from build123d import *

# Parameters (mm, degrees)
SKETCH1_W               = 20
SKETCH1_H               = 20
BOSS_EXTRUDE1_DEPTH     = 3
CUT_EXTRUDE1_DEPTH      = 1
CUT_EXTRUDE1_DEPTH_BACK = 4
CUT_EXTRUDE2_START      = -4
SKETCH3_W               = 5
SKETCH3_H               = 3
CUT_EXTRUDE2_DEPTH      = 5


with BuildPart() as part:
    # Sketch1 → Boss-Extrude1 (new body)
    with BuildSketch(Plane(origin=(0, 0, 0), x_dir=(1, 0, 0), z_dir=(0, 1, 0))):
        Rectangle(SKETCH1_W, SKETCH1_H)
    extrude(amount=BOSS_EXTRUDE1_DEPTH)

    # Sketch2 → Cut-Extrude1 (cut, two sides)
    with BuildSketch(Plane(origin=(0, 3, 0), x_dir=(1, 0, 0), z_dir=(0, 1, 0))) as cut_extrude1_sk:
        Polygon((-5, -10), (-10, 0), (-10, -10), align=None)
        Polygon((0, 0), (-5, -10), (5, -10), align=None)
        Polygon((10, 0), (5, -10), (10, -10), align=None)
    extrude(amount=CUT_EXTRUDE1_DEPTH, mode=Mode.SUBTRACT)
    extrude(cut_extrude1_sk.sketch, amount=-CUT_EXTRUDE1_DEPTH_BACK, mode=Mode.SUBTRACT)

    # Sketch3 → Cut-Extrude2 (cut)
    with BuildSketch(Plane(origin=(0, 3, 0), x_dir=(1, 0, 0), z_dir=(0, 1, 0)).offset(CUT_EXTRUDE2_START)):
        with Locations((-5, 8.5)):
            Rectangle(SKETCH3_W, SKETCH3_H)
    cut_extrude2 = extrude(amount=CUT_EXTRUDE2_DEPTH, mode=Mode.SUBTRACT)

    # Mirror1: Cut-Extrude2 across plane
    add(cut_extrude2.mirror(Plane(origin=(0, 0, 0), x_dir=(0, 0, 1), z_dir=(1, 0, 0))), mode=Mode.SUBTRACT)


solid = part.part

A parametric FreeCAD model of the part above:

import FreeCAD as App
import Part
import Sketcher
from FreeCAD import Vector
Q = App.Units.Quantity


def add_polygon(sketch, points):
    """Adds a closed chain of lines whose ends are joined by coincident constraints."""
    first, n = sketch.GeometryCount, len(points)
    for a, b in zip(points, points[1:] + points[:1]):
        sketch.addGeometry(Part.LineSegment(App.Vector(*a, 0), App.Vector(*b, 0)), False)
    for i in range(n):
        sketch.addConstraint(Sketcher.Constraint("Coincident", first + i, 2, first + (i + 1) % n, 1))

doc = App.newDocument("Part")
body = doc.addObject("PartDesign::Body", "Body")

sketch1 = body.newObject("Sketcher::SketchObject", "Sketch")
sketch1.AttachmentSupport = (doc.getObject("XZ_Plane"), [""])
sketch1.MapMode = "FlatFace"
add_polygon(sketch1, [(-10, -10), (-10, 10), (10, 10), (10, -10)])
sketch1.addConstraint([
    Sketcher.Constraint("Vertical", 0),
    Sketcher.Constraint("Horizontal", 1),
    Sketcher.Constraint("Vertical", 2),
    Sketcher.Constraint("Horizontal", 3),
    Sketcher.Constraint("Symmetric", 0, 2, 2, 2, -1, 1),
    Sketcher.Constraint("Equal", 3, 0),
    Sketcher.Constraint("DistanceX", 1, 1, 1, 2, Q("20 mm")),
])
pad1 = body.newObject("PartDesign::Pad", "Pad")
pad1.Profile = sketch1
pad1.Length = 3
pad1.Reversed = True

sketch2 = body.newObject("Sketcher::SketchObject", "Sketch001")
sketch2.AttachmentSupport = (doc.getObject("XZ_Plane"), [""])
sketch2.MapMode = "FlatFace"
sketch2.AttachmentOffset = App.Placement(Vector(0, 0, -3), App.Rotation())
add_polygon(sketch2, [(-5, 10), (-10, 0), (-10, 10)])
add_polygon(sketch2, [(0, 0), (-5, 10), (5, 10)])
add_polygon(sketch2, [(10, 0), (5, 10), (10, 10)])
sketch2.addConstraint([
    Sketcher.Constraint("Vertical", 1),
    Sketcher.Constraint("Horizontal", 2),
    Sketcher.Constraint("Horizontal", 4),
    Sketcher.Constraint("Horizontal", 7),
    Sketcher.Constraint("Vertical", 8),
    Sketcher.Constraint("Coincident", 5, 2, -1, 1),
    Sketcher.Constraint("Coincident", 3, 2, 2, 2),
    Sketcher.Constraint("Coincident", 6, 2, 4, 2),
    Sketcher.Constraint("Symmetric", 0, 2, 8, 2, -1, 1),
    Sketcher.Constraint("PointOnObject", 0, 2, -1),
    Sketcher.Constraint("Parallel", 0, 5),
    Sketcher.Constraint("Equal", 2, 7),
    Sketcher.Constraint("Equal", 4, 1),
    Sketcher.Constraint("DistanceX", 2, 1, 2, 2, Q("5 mm")),
])
pocket1 = body.newObject("PartDesign::Pocket", "Pocket")
pocket1.Profile = sketch2
pocket1.Type = "ThroughAll"
pocket1.Midplane = True

sketch3 = body.newObject("Sketcher::SketchObject", "Sketch002")
sketch3.AttachmentSupport = (doc.getObject("XZ_Plane"), [""])
sketch3.MapMode = "FlatFace"
sketch3.AttachmentOffset = App.Placement(Vector(0, 0, 1), App.Rotation())
add_polygon(sketch3, [(-7.5, -10), (-7.5, -7), (-2.5, -7), (-2.5, -10)])
sketch3.addConstraint([
    Sketcher.Constraint("Vertical", 0),
    Sketcher.Constraint("Horizontal", 1),
    Sketcher.Constraint("Vertical", 2),
    Sketcher.Constraint("Horizontal", 3),
    Sketcher.Constraint("DistanceX", 1, 1, 1, 2, Q("5 mm")),
    Sketcher.Constraint("DistanceY", 0, 1, 0, 2, Q("3 mm")),
    Sketcher.Constraint("DistanceY", 0, 2, -1, 1, Q("7 mm")),
    Sketcher.Constraint("DistanceX", 0, 2, -1, 1, Q("7.5 mm")),
])
pocket2 = body.newObject("PartDesign::Pocket", "Pocket001")
pocket2.Profile = sketch3
pocket2.Length = 5
doc.recompute()

mirrored = body.newObject("PartDesign::Mirrored", "Mirrored")
mirrored.Originals = [pocket2]
mirrored.MirrorPlane = (doc.getObject("YZ_Plane"), [""])
body.Tip = mirrored

doc.recompute()
